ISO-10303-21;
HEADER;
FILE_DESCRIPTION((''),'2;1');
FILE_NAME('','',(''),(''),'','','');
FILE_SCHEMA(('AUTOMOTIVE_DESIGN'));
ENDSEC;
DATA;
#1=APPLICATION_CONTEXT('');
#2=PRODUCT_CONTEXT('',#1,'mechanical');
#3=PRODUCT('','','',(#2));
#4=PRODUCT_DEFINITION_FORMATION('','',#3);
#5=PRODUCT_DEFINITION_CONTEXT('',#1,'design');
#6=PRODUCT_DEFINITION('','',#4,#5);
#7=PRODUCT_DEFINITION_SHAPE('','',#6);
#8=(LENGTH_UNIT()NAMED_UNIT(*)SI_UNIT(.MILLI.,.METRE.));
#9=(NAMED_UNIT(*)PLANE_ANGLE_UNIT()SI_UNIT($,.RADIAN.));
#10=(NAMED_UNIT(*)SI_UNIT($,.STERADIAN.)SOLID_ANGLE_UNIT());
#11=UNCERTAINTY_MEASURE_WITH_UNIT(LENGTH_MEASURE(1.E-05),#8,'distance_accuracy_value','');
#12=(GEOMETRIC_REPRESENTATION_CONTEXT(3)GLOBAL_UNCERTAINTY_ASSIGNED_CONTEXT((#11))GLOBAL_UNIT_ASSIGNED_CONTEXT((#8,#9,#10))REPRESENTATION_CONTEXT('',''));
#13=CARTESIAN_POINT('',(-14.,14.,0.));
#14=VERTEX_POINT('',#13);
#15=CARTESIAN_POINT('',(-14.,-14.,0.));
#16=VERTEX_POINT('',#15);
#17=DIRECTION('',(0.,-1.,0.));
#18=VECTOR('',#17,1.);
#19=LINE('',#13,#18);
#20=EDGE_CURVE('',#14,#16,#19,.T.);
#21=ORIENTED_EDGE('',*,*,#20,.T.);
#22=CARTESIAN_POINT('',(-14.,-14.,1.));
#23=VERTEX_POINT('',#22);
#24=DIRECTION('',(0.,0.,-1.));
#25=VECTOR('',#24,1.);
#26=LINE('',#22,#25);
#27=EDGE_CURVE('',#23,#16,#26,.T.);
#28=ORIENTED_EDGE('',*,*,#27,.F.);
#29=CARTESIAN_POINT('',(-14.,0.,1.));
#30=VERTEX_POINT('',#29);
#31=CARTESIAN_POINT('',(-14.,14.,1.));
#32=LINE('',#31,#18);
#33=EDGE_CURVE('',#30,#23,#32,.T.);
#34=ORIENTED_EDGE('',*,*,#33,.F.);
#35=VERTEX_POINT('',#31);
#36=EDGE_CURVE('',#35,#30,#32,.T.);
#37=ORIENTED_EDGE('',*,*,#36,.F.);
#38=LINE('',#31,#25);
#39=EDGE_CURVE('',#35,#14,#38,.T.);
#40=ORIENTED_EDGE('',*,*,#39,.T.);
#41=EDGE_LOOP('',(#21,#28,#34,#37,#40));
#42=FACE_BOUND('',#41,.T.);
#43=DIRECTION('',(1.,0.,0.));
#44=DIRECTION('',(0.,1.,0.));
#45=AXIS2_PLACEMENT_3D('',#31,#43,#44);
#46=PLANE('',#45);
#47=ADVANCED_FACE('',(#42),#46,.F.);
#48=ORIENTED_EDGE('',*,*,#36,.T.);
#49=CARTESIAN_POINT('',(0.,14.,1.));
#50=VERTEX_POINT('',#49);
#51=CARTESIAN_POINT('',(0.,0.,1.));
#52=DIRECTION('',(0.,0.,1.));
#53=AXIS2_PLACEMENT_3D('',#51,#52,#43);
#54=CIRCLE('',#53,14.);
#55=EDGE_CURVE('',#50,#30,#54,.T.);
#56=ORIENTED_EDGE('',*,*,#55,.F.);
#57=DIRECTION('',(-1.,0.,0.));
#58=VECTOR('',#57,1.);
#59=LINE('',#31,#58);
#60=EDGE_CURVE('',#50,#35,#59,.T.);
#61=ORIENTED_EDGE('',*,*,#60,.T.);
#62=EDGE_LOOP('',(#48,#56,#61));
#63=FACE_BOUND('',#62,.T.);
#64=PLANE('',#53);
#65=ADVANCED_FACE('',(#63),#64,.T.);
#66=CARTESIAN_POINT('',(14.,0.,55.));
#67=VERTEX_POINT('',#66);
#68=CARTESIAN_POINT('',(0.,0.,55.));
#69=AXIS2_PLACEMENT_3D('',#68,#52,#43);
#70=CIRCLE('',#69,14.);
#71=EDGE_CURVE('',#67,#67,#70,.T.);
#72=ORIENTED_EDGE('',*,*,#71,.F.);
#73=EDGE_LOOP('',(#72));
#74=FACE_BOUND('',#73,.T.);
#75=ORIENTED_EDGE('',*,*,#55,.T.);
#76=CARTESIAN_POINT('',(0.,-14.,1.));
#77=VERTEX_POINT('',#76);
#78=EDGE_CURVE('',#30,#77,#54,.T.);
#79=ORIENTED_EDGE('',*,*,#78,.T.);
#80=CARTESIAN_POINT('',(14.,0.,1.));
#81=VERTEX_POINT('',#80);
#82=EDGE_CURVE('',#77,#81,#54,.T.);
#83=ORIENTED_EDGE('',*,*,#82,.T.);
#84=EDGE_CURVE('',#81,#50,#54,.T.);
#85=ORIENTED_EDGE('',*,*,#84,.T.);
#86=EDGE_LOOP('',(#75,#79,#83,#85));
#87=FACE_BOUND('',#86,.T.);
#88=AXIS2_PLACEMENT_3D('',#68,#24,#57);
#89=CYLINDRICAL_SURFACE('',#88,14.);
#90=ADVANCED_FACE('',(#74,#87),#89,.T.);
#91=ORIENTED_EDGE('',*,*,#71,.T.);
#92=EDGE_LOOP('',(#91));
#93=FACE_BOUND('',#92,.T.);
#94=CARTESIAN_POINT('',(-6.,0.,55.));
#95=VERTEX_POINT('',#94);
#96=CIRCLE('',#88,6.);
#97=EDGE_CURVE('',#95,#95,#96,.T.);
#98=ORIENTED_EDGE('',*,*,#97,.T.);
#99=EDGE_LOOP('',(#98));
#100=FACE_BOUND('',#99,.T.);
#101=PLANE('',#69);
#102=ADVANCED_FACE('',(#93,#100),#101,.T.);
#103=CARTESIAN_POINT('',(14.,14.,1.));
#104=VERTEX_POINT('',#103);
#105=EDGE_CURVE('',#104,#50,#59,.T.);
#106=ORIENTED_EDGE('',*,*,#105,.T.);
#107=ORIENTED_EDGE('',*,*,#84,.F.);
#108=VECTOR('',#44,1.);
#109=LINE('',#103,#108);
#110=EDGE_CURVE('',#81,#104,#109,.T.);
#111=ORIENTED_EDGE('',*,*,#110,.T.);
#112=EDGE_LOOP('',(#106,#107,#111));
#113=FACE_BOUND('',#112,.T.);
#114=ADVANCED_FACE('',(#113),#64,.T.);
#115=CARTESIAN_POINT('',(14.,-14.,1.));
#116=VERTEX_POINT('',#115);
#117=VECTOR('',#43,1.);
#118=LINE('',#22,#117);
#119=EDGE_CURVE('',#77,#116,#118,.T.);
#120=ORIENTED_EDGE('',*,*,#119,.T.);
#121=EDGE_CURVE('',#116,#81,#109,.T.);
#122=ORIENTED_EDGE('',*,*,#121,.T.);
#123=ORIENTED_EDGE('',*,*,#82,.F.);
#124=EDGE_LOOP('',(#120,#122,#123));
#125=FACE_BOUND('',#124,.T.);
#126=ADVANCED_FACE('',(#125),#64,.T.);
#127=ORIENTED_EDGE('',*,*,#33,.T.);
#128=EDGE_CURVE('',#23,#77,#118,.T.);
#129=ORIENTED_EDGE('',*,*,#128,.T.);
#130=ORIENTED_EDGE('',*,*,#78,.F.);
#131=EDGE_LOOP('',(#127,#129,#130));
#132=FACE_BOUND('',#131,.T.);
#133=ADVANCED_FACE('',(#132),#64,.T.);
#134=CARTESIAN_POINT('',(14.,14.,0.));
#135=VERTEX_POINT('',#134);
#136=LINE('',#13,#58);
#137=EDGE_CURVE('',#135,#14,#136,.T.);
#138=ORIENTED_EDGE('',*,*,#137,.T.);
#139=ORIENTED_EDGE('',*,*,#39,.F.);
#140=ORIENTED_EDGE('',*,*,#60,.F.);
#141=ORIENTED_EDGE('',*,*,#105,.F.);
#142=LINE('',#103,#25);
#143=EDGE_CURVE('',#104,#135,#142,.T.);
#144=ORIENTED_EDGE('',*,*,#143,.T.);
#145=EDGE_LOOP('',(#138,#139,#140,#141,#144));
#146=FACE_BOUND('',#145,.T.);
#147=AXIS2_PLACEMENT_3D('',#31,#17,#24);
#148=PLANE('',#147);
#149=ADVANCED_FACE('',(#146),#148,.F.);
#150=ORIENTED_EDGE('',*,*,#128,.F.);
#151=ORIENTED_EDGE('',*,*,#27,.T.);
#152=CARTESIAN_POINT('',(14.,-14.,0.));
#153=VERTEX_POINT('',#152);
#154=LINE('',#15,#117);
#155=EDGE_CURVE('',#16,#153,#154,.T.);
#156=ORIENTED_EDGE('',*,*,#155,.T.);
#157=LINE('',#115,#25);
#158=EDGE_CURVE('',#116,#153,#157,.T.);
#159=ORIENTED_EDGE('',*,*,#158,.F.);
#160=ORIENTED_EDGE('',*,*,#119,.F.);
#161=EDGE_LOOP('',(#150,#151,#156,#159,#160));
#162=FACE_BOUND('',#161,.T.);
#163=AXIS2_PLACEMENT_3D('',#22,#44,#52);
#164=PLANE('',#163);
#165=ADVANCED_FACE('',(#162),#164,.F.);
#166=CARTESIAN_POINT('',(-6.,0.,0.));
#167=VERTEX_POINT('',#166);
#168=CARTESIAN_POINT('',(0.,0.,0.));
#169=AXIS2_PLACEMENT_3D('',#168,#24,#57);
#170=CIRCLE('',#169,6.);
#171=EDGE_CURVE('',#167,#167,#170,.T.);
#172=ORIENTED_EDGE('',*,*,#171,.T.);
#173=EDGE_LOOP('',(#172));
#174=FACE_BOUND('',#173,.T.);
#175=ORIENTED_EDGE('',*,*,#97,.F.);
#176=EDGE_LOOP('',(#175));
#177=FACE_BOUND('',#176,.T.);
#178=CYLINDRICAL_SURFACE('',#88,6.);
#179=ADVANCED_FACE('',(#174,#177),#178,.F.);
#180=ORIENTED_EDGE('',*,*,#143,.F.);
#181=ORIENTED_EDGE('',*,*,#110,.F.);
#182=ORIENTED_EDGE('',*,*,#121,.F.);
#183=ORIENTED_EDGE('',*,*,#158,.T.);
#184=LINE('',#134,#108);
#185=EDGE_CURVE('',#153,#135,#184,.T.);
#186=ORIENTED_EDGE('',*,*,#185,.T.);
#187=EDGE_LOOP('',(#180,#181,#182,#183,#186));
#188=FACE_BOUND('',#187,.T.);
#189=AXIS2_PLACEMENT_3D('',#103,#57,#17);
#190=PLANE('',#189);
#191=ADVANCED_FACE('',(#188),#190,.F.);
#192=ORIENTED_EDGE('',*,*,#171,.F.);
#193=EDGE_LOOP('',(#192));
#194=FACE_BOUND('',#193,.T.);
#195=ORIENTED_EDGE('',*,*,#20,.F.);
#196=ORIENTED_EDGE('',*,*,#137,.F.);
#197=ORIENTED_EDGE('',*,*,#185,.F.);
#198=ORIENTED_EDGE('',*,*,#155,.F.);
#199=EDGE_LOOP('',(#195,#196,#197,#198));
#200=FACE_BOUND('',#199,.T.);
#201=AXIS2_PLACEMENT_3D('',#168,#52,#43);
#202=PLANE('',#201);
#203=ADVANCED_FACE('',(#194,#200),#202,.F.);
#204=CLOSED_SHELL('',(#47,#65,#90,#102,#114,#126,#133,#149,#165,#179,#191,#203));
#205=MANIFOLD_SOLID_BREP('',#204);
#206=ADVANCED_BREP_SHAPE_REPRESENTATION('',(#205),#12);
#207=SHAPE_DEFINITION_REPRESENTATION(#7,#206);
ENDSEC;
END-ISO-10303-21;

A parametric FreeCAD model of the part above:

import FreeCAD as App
import Part
import Sketcher

V = App.Vector
Q = App.Units.Quantity


def add_polygon(sketch, points):
    """Adds a closed chain of lines whose ends are joined by coincident constraints."""
    first, n = sketch.GeometryCount, len(points)
    for a, b in zip(points, points[1:] + points[:1]):
        sketch.addGeometry(Part.LineSegment(App.Vector(*a, 0), App.Vector(*b, 0)), False)
    for i in range(n):
        sketch.addConstraint(Sketcher.Constraint("Coincident", first + i, 2, first + (i + 1) % n, 1))

doc = App.newDocument("Part")
params = doc.addObject("Spreadsheet::Sheet", "Params")
for row, (alias, value) in enumerate([
    ("sketch1_width", "28 mm"),
    ("pad1_length", "1 mm"),
    ("sketch2_diameter", "28 mm"),
    ("pad2_length", "54 mm"),
    ("sketch3_diameter", "12 mm"),
], start=1):
    params.set(f"A{row}", alias)
    params.set(f"B{row}", "=" + value)
    params.setAlias(f"B{row}", alias)

body = doc.addObject("PartDesign::Body", "Body")

sketch1 = body.newObject("Sketcher::SketchObject", "Sketch")
sketch1.AttachmentSupport = (doc.getObject("XY_Plane"), [""])
sketch1.MapMode = "FlatFace"
add_polygon(sketch1, [(-14, 14), (-14, -14), (14, -14), (14, 14)])
sketch1.addConstraint(Sketcher.Constraint("Vertical", 0))
sketch1.addConstraint(Sketcher.Constraint("Horizontal", 1))
sketch1.addConstraint(Sketcher.Constraint("Vertical", 2))
sketch1.addConstraint(Sketcher.Constraint("Horizontal", 3))
sketch1.addConstraint(Sketcher.Constraint("Symmetric", 0, 2, 2, 2, -1, 1))
sketch1.addConstraint(Sketcher.Constraint("Equal", 3, 0))
sketch1.addConstraint(Sketcher.Constraint("DistanceX", 1, 1, 1, 2, Q("28 mm")))
sketch1.setExpression("Constraints[10]", "Params.sketch1_width")
pad1 = body.newObject("PartDesign::Pad", "Pad")
pad1.Profile = sketch1
pad1.setExpression("Length", "Params.pad1_length")

sketch2 = body.newObject("Sketcher::SketchObject", "Sketch001")
sketch2.AttachmentSupport = (doc.getObject("XY_Plane"), [""])
sketch2.MapMode = "FlatFace"
sketch2.AttachmentOffset = App.Placement(V(0, 0, 1), App.Rotation())
sketch2.addGeometry(Part.Circle(V(0, 0, 0), V(0, 0, 1), 14), False)
sketch2.addConstraint(Sketcher.Constraint("Coincident", 0, 3, -1, 1))
sketch2.addConstraint(Sketcher.Constraint("Diameter", 0, Q("28 mm")))
sketch2.setExpression("Constraints[1]", "Params.sketch2_diameter")
pad2 = body.newObject("PartDesign::Pad", "Pad001")
pad2.Profile = sketch2
pad2.setExpression("Length", "Params.pad2_length")

sketch3 = body.newObject("Sketcher::SketchObject", "Sketch002")
sketch3.AttachmentSupport = (doc.getObject("XY_Plane"), [""])
sketch3.MapMode = "FlatFace"
sketch3.addGeometry(Part.Circle(V(0, 0, 0), V(0, 0, 1), 6), False)
sketch3.addConstraint(Sketcher.Constraint("Coincident", 0, 3, -1, 1))
sketch3.addConstraint(Sketcher.Constraint("Diameter", 0, Q("12 mm")))
sketch3.setExpression("Constraints[1]", "Params.sketch3_diameter")
pocket1 = body.newObject("PartDesign::Pocket", "Pocket")
pocket1.Profile = sketch3
pocket1.Type = "ThroughAll"
pocket1.Reversed = True

doc.recompute()
